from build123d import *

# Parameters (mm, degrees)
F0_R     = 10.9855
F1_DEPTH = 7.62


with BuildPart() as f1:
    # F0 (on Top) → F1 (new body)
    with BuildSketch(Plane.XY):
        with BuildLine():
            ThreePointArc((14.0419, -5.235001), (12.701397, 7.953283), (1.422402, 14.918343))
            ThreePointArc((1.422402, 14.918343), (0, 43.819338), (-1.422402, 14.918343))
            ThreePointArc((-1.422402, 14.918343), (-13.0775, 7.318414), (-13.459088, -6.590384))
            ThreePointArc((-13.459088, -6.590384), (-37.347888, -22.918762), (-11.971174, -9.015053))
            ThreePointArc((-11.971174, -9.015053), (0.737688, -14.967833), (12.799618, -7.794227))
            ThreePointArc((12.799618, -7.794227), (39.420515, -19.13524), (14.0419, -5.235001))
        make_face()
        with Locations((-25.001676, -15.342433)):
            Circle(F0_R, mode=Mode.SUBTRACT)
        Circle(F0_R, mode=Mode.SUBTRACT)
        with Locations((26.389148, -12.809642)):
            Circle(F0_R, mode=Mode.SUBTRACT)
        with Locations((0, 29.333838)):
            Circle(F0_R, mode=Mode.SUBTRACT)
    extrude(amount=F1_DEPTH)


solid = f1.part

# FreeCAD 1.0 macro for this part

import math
import FreeCAD as App
import Part
import Sketcher
Q = App.Units.Quantity

doc = App.newDocument("Part")
body = doc.addObject("PartDesign::Body", "Body")

sketch1 = doc.addObject("Sketcher::SketchObject", "Sketch")
body.addObject(sketch1)
sketch1.AttachmentSupport = (doc.XY_Plane, [""])
sketch1.MapMode = "FlatFace"
sketch1.addGeometry(Part.ArcOfCircle(Part.Circle(App.Vector(0, 0, 0), App.Vector(0, 0, 1), 15), math.radians(-20), math.radians(85)), False)
sketch1.addGeometry(Part.ArcOfCircle(Part.Circle(App.Vector(0, 29.3, 0), App.Vector(0, 0, 1), 14.5), math.radians(-84), math.radians(264)), False)
sketch1.addGeometry(Part.ArcOfCircle(Part.Circle(App.Vector(0, 0, 0), App.Vector(0, 0, 1), 15), math.radians(95), math.radians(206)), False)
sketch1.addGeometry(Part.ArcOfCircle(Part.Circle(App.Vector(-25, -15.3, 0), App.Vector(0, 0, 1), 14.5), math.radians(37), math.radians(386)), False)
sketch1.addGeometry(Part.ArcOfCircle(Part.Circle(App.Vector(0, 0, 0), App.Vector(0, 0, 1), 15), math.radians(-143), math.radians(-31)), False)
sketch1.addGeometry(Part.ArcOfCircle(Part.Circle(App.Vector(26.4, -12.8, 0), App.Vector(0, 0, 1), 14.5), math.radians(160), math.radians(508)), False)
sketch1.addGeometry(Part.Circle(App.Vector(-25, -15.3, 0), App.Vector(0, 0, 1), 11), False)
sketch1.addGeometry(Part.Circle(App.Vector(0, 0, 0), App.Vector(0, 0, 1), 11), False)
sketch1.addGeometry(Part.Circle(App.Vector(26.4, -12.8, 0), App.Vector(0, 0, 1), 11), False)
sketch1.addGeometry(Part.Circle(App.Vector(0, 29.3, 0), App.Vector(0, 0, 1), 11), False)
sketch1.addConstraint(Sketcher.Constraint("Coincident", 0, 2, 1, 1))
sketch1.addConstraint(Sketcher.Constraint("Coincident", 1, 2, 2, 1))
sketch1.addConstraint(Sketcher.Constraint("Coincident", 2, 2, 3, 1))
sketch1.addConstraint(Sketcher.Constraint("Coincident", 3, 2, 4, 1))
sketch1.addConstraint(Sketcher.Constraint("Coincident", 4, 2, 5, 1))
sketch1.addConstraint(Sketcher.Constraint("Coincident", 5, 2, 0, 1))
sketch1.addConstraint(Sketcher.Constraint("Coincident", 0, 3, -1, 1))
sketch1.addConstraint(Sketcher.Constraint("Coincident", 2, 3, -1, 1))
sketch1.addConstraint(Sketcher.Constraint("Coincident", 4, 3, -1, 1))
sketch1.addConstraint(Sketcher.Constraint("Coincident", 7, 3, -1, 1))
sketch1.addConstraint(Sketcher.Constraint("Coincident", 6, 3, 3, 3))
sketch1.addConstraint(Sketcher.Constraint("Coincident", 8, 3, 5, 3))
sketch1.addConstraint(Sketcher.Constraint("Coincident", 9, 3, 1, 3))
sketch1.addConstraint(Sketcher.Constraint("Equal", 0, 2))
sketch1.addConstraint(Sketcher.Constraint("Equal", 1, 3))
sketch1.addConstraint(Sketcher.Constraint("Equal", 2, 4))
sketch1.addConstraint(Sketcher.Constraint("Equal", 3, 5))
sketch1.addConstraint(Sketcher.Constraint("Equal", 6, 7))
sketch1.addConstraint(Sketcher.Constraint("Equal", 7, 8))
sketch1.addConstraint(Sketcher.Constraint("Equal", 8, 9))
sketch1.addConstraint(Sketcher.Constraint("PointOnObject", 1, 3, -2))
sketch1.addConstraint(Sketcher.Constraint("Radius", 0, Q("0.59 in")))
sketch1.addConstraint(Sketcher.Constraint("Diameter", 6, Q("0.865 in")))
sketch1.addConstraint(Sketcher.Constraint("Radius", 1, 14.4855))
sketch1.addConstraint(Sketcher.Constraint("DistanceX", -1, 1, 0, 2, Q("0.0560001 in")))
sketch1.addConstraint(Sketcher.Constraint("DistanceX", -1, 1, 5, 2, 14.0419))
sketch1.addConstraint(Sketcher.Constraint("DistanceX", 3, 3, 3, 2, 13.0305))
sketch1.addConstraint(Sketcher.Constraint("DistanceX", -1, 1, 5, 3, 26.389148))
sketch1.addConstraint(Sketcher.Constraint("DistanceY", 6, 3, 4, 3, 15.342432))
pad1 = doc.addObject("PartDesign::Pad", "Pad")
body.addObject(pad1)
pad1.Profile = sketch1
pad1.Length = Q("0.3 in")

doc.recompute()
